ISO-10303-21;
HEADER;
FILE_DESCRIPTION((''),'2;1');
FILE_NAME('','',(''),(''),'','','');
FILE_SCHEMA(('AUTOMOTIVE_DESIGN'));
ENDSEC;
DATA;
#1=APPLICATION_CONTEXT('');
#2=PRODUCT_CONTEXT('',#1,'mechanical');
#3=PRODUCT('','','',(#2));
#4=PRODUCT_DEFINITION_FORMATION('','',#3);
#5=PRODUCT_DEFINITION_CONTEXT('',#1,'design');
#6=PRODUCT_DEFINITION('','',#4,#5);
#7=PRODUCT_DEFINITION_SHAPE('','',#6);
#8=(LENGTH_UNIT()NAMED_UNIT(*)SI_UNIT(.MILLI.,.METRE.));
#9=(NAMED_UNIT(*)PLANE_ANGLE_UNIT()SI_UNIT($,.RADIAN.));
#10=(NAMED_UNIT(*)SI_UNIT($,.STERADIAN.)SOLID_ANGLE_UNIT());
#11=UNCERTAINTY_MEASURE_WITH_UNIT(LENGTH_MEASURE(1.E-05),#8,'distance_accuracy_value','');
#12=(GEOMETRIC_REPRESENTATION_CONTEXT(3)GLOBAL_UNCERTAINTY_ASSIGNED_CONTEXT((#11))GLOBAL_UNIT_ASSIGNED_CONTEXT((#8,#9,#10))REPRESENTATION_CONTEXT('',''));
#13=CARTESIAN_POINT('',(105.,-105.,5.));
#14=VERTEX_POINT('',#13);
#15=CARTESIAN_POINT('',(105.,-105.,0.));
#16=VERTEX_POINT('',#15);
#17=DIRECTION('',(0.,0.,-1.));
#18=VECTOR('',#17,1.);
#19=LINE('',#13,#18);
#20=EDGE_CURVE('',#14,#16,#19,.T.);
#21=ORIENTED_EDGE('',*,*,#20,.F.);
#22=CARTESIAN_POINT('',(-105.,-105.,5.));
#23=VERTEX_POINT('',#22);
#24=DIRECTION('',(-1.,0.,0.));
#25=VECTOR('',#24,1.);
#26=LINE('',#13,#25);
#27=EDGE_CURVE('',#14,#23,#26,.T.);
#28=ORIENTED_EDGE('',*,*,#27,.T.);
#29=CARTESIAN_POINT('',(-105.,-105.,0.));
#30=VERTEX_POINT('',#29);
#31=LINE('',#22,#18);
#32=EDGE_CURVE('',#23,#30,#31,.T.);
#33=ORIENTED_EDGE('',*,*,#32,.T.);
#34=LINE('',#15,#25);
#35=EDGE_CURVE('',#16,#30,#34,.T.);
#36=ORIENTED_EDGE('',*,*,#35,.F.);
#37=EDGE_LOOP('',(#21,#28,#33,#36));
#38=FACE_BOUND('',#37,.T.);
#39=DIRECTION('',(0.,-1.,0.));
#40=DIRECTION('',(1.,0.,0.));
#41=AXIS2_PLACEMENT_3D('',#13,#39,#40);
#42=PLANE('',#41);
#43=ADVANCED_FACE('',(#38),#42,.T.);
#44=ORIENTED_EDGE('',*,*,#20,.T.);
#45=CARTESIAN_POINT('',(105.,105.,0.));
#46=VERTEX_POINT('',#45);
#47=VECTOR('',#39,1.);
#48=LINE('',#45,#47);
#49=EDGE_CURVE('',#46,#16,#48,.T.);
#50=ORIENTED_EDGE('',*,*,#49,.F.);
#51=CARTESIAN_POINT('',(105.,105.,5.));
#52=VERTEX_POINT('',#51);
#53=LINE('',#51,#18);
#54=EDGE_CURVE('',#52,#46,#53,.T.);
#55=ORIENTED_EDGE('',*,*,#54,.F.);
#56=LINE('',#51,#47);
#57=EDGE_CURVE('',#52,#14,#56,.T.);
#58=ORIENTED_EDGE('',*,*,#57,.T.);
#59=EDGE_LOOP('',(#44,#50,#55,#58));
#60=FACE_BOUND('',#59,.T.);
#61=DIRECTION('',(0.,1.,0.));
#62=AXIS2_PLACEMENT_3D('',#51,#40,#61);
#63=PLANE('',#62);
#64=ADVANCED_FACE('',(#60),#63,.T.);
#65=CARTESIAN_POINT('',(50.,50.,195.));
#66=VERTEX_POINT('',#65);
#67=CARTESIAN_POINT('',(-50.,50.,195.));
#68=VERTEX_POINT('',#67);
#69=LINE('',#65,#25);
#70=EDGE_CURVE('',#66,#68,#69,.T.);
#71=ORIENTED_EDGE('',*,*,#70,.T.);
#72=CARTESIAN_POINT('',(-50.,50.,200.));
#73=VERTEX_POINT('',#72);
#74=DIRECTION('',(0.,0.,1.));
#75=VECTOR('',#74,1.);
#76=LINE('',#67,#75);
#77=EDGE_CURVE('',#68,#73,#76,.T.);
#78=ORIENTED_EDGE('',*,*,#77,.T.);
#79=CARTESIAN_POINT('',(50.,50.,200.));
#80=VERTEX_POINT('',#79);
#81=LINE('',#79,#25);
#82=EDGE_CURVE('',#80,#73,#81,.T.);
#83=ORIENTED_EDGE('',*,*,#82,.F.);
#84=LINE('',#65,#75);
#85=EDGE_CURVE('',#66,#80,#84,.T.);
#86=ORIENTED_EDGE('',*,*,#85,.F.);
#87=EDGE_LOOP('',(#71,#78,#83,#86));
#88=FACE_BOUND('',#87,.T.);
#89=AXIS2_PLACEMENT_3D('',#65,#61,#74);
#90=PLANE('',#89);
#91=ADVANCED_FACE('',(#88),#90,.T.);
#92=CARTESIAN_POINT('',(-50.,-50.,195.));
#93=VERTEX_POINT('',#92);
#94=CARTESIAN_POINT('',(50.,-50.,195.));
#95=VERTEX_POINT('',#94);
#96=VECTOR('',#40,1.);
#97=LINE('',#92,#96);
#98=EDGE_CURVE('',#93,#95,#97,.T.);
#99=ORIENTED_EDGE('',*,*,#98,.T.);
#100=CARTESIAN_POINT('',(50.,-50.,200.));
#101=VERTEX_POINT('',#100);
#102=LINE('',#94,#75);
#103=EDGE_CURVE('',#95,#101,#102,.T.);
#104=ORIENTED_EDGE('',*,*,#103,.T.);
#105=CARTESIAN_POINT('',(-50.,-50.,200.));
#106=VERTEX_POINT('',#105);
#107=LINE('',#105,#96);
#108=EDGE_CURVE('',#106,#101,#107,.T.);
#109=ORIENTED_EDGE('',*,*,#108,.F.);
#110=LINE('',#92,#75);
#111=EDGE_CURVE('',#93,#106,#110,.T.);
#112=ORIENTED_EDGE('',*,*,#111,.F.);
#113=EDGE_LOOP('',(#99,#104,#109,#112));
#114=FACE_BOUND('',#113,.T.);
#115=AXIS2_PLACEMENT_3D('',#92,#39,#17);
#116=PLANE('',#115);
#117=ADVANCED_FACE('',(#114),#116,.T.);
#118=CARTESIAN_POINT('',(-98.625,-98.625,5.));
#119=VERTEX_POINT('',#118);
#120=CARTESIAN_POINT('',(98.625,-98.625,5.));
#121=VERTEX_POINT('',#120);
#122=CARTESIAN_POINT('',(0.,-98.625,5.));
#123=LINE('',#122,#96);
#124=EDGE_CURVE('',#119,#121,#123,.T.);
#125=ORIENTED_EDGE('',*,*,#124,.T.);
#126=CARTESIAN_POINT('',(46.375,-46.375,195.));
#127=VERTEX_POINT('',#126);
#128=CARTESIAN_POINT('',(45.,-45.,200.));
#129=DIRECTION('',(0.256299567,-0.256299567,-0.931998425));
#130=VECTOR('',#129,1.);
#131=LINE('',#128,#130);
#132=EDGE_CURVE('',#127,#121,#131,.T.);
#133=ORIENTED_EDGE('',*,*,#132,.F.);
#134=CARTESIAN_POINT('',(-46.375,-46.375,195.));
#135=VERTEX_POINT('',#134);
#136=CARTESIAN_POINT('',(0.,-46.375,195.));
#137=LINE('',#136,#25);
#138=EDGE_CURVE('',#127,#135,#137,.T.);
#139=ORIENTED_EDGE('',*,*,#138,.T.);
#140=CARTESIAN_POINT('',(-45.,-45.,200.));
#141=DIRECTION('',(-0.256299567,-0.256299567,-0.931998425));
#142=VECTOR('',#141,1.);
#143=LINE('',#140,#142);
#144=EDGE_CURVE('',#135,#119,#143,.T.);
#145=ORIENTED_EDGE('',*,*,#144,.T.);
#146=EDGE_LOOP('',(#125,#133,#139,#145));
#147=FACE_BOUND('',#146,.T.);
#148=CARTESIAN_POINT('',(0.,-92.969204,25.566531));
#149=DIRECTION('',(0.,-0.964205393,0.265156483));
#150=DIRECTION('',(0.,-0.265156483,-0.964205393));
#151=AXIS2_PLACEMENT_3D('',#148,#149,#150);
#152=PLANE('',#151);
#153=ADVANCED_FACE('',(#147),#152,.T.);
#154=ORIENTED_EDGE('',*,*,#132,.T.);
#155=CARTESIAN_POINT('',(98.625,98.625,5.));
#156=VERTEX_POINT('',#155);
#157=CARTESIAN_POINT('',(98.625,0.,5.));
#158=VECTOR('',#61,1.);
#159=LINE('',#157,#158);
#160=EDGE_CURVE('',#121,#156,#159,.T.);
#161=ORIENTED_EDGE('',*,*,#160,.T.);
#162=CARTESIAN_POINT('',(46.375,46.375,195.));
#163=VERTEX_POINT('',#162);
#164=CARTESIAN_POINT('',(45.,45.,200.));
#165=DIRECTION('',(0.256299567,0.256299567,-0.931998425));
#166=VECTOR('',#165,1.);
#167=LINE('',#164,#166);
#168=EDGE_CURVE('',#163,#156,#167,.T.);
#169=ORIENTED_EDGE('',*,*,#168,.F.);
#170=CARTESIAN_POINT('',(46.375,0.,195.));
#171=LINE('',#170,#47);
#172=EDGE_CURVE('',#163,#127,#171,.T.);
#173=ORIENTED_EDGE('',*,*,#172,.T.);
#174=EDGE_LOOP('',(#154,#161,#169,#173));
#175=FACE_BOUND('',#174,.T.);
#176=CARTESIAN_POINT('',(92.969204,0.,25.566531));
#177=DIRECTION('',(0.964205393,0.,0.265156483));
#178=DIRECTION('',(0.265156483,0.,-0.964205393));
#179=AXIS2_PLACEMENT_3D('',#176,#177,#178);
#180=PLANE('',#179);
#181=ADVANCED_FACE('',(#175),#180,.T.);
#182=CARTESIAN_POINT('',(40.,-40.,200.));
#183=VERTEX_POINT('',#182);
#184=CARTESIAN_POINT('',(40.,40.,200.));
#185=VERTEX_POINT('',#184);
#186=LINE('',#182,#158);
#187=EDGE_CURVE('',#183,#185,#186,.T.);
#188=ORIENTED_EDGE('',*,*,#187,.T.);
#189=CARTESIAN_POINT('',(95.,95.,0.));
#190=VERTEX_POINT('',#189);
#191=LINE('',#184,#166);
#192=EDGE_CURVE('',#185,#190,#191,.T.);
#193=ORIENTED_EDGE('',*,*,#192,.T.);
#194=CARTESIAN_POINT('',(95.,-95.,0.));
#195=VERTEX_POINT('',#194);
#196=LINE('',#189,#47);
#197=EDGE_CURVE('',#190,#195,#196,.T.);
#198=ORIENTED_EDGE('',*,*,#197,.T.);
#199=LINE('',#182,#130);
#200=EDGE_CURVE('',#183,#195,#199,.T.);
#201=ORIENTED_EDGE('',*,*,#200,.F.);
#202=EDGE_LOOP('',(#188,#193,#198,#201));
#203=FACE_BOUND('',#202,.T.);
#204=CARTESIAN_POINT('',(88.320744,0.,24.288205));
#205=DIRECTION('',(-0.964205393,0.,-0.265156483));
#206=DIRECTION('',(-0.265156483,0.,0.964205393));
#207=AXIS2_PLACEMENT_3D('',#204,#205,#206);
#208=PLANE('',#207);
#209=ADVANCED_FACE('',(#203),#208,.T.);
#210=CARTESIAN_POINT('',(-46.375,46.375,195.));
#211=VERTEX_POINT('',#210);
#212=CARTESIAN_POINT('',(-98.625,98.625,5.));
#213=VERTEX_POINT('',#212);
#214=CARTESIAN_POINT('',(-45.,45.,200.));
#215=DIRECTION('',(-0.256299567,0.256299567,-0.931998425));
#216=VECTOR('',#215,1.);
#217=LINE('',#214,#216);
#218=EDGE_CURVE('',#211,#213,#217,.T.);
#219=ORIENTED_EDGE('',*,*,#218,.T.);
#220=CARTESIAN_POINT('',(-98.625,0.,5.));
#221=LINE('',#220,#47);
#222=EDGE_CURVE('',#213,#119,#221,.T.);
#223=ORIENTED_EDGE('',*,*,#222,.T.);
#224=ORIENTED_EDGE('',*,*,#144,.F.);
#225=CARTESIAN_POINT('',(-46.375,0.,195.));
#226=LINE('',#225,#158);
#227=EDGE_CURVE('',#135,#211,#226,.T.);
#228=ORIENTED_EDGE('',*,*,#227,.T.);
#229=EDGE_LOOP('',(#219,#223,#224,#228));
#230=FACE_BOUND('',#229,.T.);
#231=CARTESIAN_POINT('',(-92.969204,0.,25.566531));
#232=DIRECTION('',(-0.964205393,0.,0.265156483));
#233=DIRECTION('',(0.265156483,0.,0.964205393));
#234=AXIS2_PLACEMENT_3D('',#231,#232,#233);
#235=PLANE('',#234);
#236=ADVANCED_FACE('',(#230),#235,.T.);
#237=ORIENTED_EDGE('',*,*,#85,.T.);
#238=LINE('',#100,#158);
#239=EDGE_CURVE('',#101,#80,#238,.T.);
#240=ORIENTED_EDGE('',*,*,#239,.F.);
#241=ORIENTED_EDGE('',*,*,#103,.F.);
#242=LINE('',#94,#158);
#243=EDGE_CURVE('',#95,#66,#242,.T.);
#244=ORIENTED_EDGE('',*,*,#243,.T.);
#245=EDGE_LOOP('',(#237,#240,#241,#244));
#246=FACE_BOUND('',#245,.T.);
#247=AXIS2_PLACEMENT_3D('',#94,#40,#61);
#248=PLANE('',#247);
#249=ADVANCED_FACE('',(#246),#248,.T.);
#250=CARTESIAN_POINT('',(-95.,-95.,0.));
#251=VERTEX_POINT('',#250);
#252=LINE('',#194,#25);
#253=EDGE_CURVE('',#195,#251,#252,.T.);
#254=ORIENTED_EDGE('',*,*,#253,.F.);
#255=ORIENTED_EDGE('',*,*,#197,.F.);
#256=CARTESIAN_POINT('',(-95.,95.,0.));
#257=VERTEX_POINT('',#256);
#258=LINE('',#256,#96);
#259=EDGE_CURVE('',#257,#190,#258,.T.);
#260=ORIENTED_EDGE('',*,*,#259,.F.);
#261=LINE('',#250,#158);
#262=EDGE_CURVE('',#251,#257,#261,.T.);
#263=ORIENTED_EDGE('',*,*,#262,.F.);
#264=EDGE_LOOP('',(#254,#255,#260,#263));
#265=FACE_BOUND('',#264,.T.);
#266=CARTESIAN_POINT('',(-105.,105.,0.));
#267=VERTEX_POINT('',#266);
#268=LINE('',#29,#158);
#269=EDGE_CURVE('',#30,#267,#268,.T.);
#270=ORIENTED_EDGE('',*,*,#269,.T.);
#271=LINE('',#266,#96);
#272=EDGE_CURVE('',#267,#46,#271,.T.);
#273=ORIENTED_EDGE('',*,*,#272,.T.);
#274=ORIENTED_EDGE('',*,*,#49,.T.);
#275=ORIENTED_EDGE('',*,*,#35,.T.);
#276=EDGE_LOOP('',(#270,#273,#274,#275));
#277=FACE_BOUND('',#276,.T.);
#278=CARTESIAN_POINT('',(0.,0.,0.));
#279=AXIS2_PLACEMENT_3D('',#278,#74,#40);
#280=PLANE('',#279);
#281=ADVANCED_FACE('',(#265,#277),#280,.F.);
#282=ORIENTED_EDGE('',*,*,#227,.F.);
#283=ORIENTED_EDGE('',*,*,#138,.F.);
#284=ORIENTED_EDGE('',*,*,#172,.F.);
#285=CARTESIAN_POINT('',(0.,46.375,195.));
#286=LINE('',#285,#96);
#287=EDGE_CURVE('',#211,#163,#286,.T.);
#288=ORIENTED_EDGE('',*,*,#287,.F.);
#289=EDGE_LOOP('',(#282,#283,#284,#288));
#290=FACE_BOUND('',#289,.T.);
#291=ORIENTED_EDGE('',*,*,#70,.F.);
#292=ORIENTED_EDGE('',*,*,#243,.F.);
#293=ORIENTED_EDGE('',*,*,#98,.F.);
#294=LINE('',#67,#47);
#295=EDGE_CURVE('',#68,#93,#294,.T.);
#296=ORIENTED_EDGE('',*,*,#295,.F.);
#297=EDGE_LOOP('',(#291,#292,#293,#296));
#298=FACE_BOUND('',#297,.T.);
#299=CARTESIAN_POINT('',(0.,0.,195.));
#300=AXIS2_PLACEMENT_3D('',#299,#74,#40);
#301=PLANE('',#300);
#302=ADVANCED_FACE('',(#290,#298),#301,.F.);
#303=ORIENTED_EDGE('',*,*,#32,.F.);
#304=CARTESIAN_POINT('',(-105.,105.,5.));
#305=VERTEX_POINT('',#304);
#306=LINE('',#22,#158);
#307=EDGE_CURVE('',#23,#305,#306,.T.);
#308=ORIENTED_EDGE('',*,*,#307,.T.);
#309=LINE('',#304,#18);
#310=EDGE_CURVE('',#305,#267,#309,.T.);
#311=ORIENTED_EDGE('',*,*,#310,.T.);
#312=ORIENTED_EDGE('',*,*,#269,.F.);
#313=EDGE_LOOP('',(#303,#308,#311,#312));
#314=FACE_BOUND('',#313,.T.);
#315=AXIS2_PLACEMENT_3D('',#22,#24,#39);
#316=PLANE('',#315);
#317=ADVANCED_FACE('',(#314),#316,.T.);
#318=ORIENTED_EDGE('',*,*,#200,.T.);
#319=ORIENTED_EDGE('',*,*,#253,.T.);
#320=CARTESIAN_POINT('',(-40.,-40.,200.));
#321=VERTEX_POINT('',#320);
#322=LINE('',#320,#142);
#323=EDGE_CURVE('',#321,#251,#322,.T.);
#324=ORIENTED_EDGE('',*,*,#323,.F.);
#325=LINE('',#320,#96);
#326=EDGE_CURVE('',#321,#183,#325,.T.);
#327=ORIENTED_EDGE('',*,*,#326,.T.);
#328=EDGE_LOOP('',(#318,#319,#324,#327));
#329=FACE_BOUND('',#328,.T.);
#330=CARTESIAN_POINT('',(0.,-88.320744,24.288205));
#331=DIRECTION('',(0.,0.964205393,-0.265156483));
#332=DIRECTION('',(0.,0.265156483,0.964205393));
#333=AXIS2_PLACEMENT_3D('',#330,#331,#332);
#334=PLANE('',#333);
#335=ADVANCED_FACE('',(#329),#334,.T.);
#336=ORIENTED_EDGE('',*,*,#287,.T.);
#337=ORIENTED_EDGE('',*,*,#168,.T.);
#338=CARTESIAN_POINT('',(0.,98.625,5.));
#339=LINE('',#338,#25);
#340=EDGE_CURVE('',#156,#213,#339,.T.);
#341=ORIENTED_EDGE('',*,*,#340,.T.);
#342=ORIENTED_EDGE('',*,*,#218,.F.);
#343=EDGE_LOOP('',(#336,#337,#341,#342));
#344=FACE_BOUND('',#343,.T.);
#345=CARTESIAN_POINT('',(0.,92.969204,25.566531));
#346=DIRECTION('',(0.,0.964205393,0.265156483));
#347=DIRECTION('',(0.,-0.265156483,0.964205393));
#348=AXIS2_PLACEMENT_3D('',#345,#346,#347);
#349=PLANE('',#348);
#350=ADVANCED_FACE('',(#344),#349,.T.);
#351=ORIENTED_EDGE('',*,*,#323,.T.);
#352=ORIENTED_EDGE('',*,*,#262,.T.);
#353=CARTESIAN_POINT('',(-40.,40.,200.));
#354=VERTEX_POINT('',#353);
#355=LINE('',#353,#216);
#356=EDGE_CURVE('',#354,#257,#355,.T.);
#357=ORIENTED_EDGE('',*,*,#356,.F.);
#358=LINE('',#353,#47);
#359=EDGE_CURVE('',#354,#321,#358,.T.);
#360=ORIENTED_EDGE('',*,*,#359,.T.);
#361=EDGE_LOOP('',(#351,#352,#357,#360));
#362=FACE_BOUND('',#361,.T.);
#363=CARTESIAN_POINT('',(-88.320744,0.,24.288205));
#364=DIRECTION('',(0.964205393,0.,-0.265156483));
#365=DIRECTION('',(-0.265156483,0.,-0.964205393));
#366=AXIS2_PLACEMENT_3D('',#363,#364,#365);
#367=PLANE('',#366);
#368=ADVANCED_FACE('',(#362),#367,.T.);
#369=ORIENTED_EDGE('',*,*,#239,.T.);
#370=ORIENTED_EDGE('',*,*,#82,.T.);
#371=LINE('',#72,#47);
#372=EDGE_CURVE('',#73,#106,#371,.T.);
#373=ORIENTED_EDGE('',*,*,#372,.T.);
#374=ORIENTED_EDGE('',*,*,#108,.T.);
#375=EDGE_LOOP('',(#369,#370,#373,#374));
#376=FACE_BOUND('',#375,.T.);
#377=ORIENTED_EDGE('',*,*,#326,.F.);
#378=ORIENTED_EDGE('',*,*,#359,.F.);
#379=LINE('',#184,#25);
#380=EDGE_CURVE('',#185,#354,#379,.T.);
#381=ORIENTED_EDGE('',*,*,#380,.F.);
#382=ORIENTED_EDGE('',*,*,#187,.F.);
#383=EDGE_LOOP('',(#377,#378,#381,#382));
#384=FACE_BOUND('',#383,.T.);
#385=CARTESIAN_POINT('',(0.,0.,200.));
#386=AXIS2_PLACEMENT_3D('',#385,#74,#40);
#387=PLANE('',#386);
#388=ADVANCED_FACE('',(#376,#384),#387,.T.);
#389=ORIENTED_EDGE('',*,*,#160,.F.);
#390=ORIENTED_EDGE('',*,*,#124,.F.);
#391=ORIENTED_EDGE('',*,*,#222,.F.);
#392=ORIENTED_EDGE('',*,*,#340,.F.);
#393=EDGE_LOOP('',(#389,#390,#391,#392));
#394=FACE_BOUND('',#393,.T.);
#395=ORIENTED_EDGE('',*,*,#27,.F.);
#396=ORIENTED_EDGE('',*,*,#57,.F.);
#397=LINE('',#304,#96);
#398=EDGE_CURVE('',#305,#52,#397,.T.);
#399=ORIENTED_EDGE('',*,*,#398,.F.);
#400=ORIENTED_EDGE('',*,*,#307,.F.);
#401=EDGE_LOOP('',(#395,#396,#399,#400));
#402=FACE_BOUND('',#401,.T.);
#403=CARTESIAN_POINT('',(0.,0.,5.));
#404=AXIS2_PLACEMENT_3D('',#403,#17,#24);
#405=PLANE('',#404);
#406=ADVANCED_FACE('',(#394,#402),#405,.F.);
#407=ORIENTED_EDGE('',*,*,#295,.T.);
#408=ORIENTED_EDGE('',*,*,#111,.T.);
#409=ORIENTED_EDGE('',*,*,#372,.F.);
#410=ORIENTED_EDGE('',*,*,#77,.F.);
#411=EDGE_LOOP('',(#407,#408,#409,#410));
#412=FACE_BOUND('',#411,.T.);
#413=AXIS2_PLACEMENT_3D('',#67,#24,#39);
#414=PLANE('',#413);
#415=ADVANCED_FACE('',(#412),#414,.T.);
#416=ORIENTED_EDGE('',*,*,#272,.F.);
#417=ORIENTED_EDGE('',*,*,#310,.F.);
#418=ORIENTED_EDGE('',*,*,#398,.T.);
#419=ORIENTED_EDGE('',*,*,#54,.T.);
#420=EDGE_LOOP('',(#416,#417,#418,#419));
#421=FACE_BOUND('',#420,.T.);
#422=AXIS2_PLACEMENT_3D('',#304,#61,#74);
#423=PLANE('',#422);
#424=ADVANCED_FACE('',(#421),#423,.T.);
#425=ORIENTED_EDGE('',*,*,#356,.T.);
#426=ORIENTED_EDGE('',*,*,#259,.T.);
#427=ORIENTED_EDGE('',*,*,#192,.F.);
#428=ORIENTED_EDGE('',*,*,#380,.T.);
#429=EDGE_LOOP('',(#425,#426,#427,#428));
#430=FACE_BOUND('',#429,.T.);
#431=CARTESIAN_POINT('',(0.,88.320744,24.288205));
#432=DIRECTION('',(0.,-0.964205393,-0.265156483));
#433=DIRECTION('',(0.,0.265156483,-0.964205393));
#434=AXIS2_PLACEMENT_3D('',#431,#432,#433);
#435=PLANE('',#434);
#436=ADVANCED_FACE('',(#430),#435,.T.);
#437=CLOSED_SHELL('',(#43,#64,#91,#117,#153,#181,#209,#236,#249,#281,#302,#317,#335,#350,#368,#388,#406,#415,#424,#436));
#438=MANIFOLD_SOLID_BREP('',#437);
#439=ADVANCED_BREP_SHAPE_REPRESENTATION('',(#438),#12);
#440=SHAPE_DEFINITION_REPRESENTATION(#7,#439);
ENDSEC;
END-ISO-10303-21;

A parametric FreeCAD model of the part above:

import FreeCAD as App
import Part
import Sketcher
from FreeCAD import Vector

doc = App.newDocument("Part")
body = doc.addObject("PartDesign::Body", "Body")

# Sketch on XY plane
sketch1 = body.newObject("Sketcher::SketchObject", "Sketch")
sketch1.AttachmentSupport = (doc.getObject("XY_Plane"), [""])
sketch1.MapMode = "FlatFace"
sketch1.AttachmentOffset = App.Placement(Vector(0, 0, 200), App.Rotation())
sketch1.addGeometry([
    Part.LineSegment(Vector(-45, 45, 0), Vector(-45, -45, 0)),
    Part.LineSegment(Vector(-45, -45, 0), Vector(45, -45, 0)),
    Part.LineSegment(Vector(45, -45, 0), Vector(45, 45, 0)),
    Part.LineSegment(Vector(45, 45, 0), Vector(-45, 45, 0)),
], False)
sketch1.addConstraint([
    Sketcher.Constraint("Coincident", 0, 2, 1, 1),
    Sketcher.Constraint("Coincident", 1, 2, 2, 1),
    Sketcher.Constraint("Coincident", 2, 2, 3, 1),
    Sketcher.Constraint("Coincident", 3, 2, 0, 1),
    Sketcher.Constraint("Vertical", 0),
    Sketcher.Constraint("Horizontal", 1),
    Sketcher.Constraint("Vertical", 2),
    Sketcher.Constraint("Horizontal", 3),
    Sketcher.Constraint("Symmetric", 0, 2, 2, 2, -1, 1),
    Sketcher.Constraint("Equal", 3, 0),
    Sketcher.Constraint("DistanceX", 1, 1, 1, 2, 90.0),
])

# Sketch on XY plane
sketch2 = body.newObject("Sketcher::SketchObject", "Sketch001")
sketch2.AttachmentSupport = (doc.getObject("XY_Plane"), [""])
sketch2.MapMode = "FlatFace"
sketch2.addGeometry([
    Part.LineSegment(Vector(-100, 100, 0), Vector(-100, -100, 0)),
    Part.LineSegment(Vector(-100, -100, 0), Vector(100, -100, 0)),
    Part.LineSegment(Vector(100, -100, 0), Vector(100, 100, 0)),
    Part.LineSegment(Vector(100, 100, 0), Vector(-100, 100, 0)),
], False)
sketch2.addConstraint([
    Sketcher.Constraint("Coincident", 0, 2, 1, 1),
    Sketcher.Constraint("Coincident", 1, 2, 2, 1),
    Sketcher.Constraint("Coincident", 2, 2, 3, 1),
    Sketcher.Constraint("Coincident", 3, 2, 0, 1),
    Sketcher.Constraint("Vertical", 0),
    Sketcher.Constraint("Horizontal", 1),
    Sketcher.Constraint("Vertical", 2),
    Sketcher.Constraint("Horizontal", 3),
    Sketcher.Constraint("Symmetric", 0, 2, 2, 2, -1, 1),
    Sketcher.Constraint("Equal", 3, 0),
    Sketcher.Constraint("DistanceX", 1, 1, 1, 2, 200.0),
])

additiveloft = body.newObject("PartDesign::AdditiveLoft", "AdditiveLoft")
additiveloft.Profile = sketch1
additiveloft.Sections = [sketch2]

# Sketch on XY plane
sketch3 = body.newObject("Sketcher::SketchObject", "Sketch002")
sketch3.AttachmentSupport = (doc.getObject("XY_Plane"), [""])
sketch3.MapMode = "FlatFace"
sketch3.addGeometry([
    Part.LineSegment(Vector(105, 105, 0), Vector(105, -105, 0)),
    Part.LineSegment(Vector(105, -105, 0), Vector(-105, -105, 0)),
    Part.LineSegment(Vector(-105, -105, 0), Vector(-105, 105, 0)),
    Part.LineSegment(Vector(-105, 105, 0), Vector(105, 105, 0)),
], False)
sketch3.addConstraint([
    Sketcher.Constraint("Coincident", 0, 2, 1, 1),
    Sketcher.Constraint("Coincident", 1, 2, 2, 1),
    Sketcher.Constraint("Coincident", 2, 2, 3, 1),
    Sketcher.Constraint("Coincident", 3, 2, 0, 1),
    Sketcher.Constraint("Vertical", 0),
    Sketcher.Constraint("Horizontal", 1),
    Sketcher.Constraint("Vertical", 2),
    Sketcher.Constraint("Horizontal", 3),
    Sketcher.Constraint("Symmetric", 0, 2, 2, 2, -1, 1),
    Sketcher.Constraint("Equal", 3, 0),
    Sketcher.Constraint("DistanceX", 1, 2, 1, 1, 210.0),
])
pad1 = body.newObject("PartDesign::Pad", "Pad")
pad1.Profile = sketch3
pad1.Length = 5

# Sketch on XY plane
sketch4 = body.newObject("Sketcher::SketchObject", "Sketch003")
sketch4.AttachmentSupport = (doc.getObject("XY_Plane"), [""])
sketch4.MapMode = "FlatFace"
sketch4.AttachmentOffset = App.Placement(Vector(0, 0, 200), App.Rotation())
sketch4.addGeometry([
    Part.LineSegment(Vector(-50, 50, 0), Vector(-50, -50, 0)),
    Part.LineSegment(Vector(-50, -50, 0), Vector(50, -50, 0)),
    Part.LineSegment(Vector(50, -50, 0), Vector(50, 50, 0)),
    Part.LineSegment(Vector(50, 50, 0), Vector(-50, 50, 0)),
], False)
sketch4.addConstraint([
    Sketcher.Constraint("Coincident", 0, 2, 1, 1),
    Sketcher.Constraint("Coincident", 1, 2, 2, 1),
    Sketcher.Constraint("Coincident", 2, 2, 3, 1),
    Sketcher.Constraint("Coincident", 3, 2, 0, 1),
    Sketcher.Constraint("Vertical", 0),
    Sketcher.Constraint("Horizontal", 1),
    Sketcher.Constraint("Vertical", 2),
    Sketcher.Constraint("Horizontal", 3),
    Sketcher.Constraint("Symmetric", 0, 2, 2, 2, -1, 1),
    Sketcher.Constraint("Equal", 3, 0),
    Sketcher.Constraint("DistanceX", 1, 1, 1, 2, 100.0),
])
pad2 = body.newObject("PartDesign::Pad", "Pad001")
pad2.Profile = sketch4
pad2.Length = 5
pad2.Reversed = True

# Sketch on XY plane
sketch5 = body.newObject("Sketcher::SketchObject", "Sketch004")
sketch5.AttachmentSupport = (doc.getObject("XY_Plane"), [""])
sketch5.MapMode = "FlatFace"
sketch5.AttachmentOffset = App.Placement(Vector(0, 0, 200), App.Rotation())
sketch5.addGeometry([
    Part.LineSegment(Vector(-40, 40, 0), Vector(-40, -40, 0)),
    Part.LineSegment(Vector(-40, -40, 0), Vector(40, -40, 0)),
    Part.LineSegment(Vector(40, -40, 0), Vector(40, 40, 0)),
    Part.LineSegment(Vector(40, 40, 0), Vector(-40, 40, 0)),
], False)
sketch5.addConstraint([
    Sketcher.Constraint("Coincident", 0, 2, 1, 1),
    Sketcher.Constraint("Coincident", 1, 2, 2, 1),
    Sketcher.Constraint("Coincident", 2, 2, 3, 1),
    Sketcher.Constraint("Coincident", 3, 2, 0, 1),
    Sketcher.Constraint("Vertical", 0),
    Sketcher.Constraint("Horizontal", 1),
    Sketcher.Constraint("Vertical", 2),
    Sketcher.Constraint("Horizontal", 3),
    Sketcher.Constraint("Symmetric", 0, 2, 2, 2, -1, 1),
    Sketcher.Constraint("Equal", 3, 0),
    Sketcher.Constraint("DistanceX", 1, 1, 1, 2, 80.0),
])

# Sketch on XY plane
sketch6 = body.newObject("Sketcher::SketchObject", "Sketch005")
sketch6.AttachmentSupport = (doc.getObject("XY_Plane"), [""])
sketch6.MapMode = "FlatFace"
sketch6.addGeometry([
    Part.LineSegment(Vector(95, 95, 0), Vector(95, -95, 0)),
    Part.LineSegment(Vector(95, -95, 0), Vector(-95, -95, 0)),
    Part.LineSegment(Vector(-95, -95, 0), Vector(-95, 95, 0)),
    Part.LineSegment(Vector(-95, 95, 0), Vector(95, 95, 0)),
], False)
sketch6.addConstraint([
    Sketcher.Constraint("Coincident", 0, 2, 1, 1),
    Sketcher.Constraint("Coincident", 1, 2, 2, 1),
    Sketcher.Constraint("Coincident", 2, 2, 3, 1),
    Sketcher.Constraint("Coincident", 3, 2, 0, 1),
    Sketcher.Constraint("Vertical", 0),
    Sketcher.Constraint("Horizontal", 1),
    Sketcher.Constraint("Vertical", 2),
    Sketcher.Constraint("Horizontal", 3),
    Sketcher.Constraint("Symmetric", 0, 2, 2, 2, -1, 1),
    Sketcher.Constraint("Equal", 3, 0),
    Sketcher.Constraint("DistanceX", 1, 2, 1, 1, 190.0),
])

subtractiveloft = body.newObject("PartDesign::SubtractiveLoft", "SubtractiveLoft")
subtractiveloft.Profile = sketch5
subtractiveloft.Sections = [sketch6]

doc.recompute()
